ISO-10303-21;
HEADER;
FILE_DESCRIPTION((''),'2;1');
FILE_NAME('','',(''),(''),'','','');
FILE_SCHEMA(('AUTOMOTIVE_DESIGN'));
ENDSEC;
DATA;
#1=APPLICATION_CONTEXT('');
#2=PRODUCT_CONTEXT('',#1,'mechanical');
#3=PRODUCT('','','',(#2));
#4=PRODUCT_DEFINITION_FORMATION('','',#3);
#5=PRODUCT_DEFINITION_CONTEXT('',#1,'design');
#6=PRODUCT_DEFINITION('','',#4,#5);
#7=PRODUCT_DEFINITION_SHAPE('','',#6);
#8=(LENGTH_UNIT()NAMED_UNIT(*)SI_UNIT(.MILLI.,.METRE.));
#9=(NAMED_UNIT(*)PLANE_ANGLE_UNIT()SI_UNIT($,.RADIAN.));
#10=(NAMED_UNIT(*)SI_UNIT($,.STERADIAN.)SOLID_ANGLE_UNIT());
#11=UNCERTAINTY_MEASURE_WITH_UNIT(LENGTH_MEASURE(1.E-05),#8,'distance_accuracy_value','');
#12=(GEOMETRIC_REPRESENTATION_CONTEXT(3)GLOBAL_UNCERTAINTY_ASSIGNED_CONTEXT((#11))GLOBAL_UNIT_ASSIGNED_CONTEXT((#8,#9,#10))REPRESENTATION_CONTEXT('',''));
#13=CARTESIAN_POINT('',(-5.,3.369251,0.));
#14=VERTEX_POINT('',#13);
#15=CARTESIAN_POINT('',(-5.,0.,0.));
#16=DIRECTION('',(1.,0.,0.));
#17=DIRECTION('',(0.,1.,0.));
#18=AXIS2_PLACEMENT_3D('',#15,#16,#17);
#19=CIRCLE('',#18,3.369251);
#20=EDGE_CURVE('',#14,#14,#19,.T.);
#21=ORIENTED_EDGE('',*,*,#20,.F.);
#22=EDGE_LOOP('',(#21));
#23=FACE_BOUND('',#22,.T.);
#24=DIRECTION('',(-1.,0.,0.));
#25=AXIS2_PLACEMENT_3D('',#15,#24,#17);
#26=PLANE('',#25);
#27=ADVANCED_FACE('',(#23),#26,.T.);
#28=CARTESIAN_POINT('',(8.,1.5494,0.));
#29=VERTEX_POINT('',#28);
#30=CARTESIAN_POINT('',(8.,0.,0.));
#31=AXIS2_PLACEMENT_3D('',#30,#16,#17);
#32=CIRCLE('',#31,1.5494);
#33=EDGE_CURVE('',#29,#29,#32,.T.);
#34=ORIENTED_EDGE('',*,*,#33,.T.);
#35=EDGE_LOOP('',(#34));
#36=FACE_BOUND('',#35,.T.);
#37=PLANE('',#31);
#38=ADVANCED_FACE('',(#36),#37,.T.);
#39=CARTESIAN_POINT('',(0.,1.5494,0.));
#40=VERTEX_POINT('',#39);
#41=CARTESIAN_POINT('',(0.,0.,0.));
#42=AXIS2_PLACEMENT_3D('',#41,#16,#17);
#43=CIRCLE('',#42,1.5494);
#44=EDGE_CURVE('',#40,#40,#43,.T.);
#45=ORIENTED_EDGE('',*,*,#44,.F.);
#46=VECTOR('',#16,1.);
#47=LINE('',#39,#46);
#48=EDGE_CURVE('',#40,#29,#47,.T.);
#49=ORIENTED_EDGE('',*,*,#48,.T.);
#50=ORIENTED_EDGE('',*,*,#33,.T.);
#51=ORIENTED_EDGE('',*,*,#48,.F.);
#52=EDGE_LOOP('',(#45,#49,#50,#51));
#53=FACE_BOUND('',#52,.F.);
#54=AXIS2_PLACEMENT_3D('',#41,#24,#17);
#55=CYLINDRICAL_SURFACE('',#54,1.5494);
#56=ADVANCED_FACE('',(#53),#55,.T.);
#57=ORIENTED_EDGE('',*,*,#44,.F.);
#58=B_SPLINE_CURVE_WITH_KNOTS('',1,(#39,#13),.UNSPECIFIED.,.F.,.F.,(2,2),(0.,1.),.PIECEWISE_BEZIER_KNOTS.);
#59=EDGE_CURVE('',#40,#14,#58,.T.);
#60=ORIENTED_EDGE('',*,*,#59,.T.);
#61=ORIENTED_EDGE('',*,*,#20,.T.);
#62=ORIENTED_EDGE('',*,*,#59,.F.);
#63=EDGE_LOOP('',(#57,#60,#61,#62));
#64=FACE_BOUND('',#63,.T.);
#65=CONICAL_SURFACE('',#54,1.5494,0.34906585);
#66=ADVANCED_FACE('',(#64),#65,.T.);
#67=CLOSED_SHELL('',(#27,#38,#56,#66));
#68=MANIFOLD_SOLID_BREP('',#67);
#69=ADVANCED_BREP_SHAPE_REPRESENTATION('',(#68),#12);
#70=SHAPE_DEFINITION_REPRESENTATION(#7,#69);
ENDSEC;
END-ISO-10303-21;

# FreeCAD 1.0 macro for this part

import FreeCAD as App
import Part
import Sketcher

V = App.Vector
Q = App.Units.Quantity

doc = App.newDocument("Part")
body = doc.addObject("PartDesign::Body", "Body")

# Sketch on YZ plane
sketch1 = body.newObject("Sketcher::SketchObject", "Sketch")
sketch1.AttachmentSupport = (doc.getObject("YZ_Plane"), [""])
sketch1.MapMode = "FlatFace"
sketch1.addGeometry(Part.Circle(V(0, 0, 0), V(0, 0, 1), 1.5), False)
sketch1.addConstraint([
    Sketcher.Constraint("Coincident", 0, 3, -1, 1),
    Sketcher.Constraint("Diameter", 0, Q("3.0988 mm")),
])
pad1 = body.newObject("PartDesign::Pad", "Pad")
pad1.Profile = sketch1
pad1.Length = 8

# Sketch on YZ plane
sketch2 = body.newObject("Sketcher::SketchObject", "Sketch001")
sketch2.AttachmentSupport = (doc.getObject("YZ_Plane"), [""])
sketch2.MapMode = "FlatFace"
sketch2.addGeometry(Part.Circle(V(0, 0, 0), V(0, 0, 1), 1.5), False)
sketch2.addConstraint([
    Sketcher.Constraint("Coincident", 0, 3, -1, 1),
    Sketcher.Constraint("Diameter", 0, Q("3.0988 mm")),
])
pad2 = body.newObject("PartDesign::Pad", "Pad001")
pad2.Profile = sketch2
pad2.Length = 5
pad2.Reversed = True
pad2.TaperAngle = 20

doc.recompute()
